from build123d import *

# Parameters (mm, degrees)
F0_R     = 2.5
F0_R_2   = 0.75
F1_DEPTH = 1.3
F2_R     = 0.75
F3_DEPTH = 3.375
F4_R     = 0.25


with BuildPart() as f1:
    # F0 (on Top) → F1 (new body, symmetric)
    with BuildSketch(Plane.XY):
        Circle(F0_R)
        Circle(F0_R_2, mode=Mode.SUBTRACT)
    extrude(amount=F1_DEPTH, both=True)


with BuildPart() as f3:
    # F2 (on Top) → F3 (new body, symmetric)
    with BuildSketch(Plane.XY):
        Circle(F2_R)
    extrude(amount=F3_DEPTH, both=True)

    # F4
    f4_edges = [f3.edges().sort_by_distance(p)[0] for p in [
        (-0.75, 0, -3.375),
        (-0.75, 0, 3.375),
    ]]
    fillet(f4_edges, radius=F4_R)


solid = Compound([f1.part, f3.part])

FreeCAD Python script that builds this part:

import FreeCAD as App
import Part
import Sketcher

V = App.Vector


def edges_at(feature, points):
    """Names of the edges that pass closest to the given points."""
    edges = feature.Shape.Edges
    near = lambda p: min(range(len(edges)), key=lambda i: edges[i].distToShape(Part.Vertex(*p))[0])
    return sorted({f"Edge{near(p) + 1}" for p in points})

doc = App.newDocument("Part")
params = doc.addObject("Spreadsheet::Sheet", "Params")
for row, (alias, value) in enumerate([
    ("sketch1_diameter", "5 mm"),
    ("sketch1_diameter2", "1.5 mm"),
    ("pad1_length", "2.6 mm"),
    ("sketch2_diameter", "1.5 mm"),
    ("pad2_length", "6.75 mm"),
    ("fillet_radius", "0.25 mm"),
], start=1):
    params.set(f"A{row}", alias)
    params.set(f"B{row}", "=" + value)
    params.setAlias(f"B{row}", alias)

body = doc.addObject("PartDesign::Body", "Body")

sketch1 = body.newObject("Sketcher::SketchObject", "Sketch")
sketch1.AttachmentSupport = (doc.getObject("XY_Plane"), [""])
sketch1.MapMode = "FlatFace"
sketch1.addGeometry([
    Part.Circle(V(0, 0, 0), V(0, 0, 1), 2.5),
    Part.Circle(V(0, 0, 0), V(0, 0, 1), 0.8),
], False)
sketch1.addConstraint([
    Sketcher.Constraint("Coincident", 0, 3, -1, 1),
    Sketcher.Constraint("Coincident", 1, 3, -1, 1),
    Sketcher.Constraint("Diameter", 0, 5.0),
    Sketcher.Constraint("Diameter", 1, 1.5),
])
sketch1.setExpression("Constraints[2]", "Params.sketch1_diameter")
sketch1.setExpression("Constraints[3]", "Params.sketch1_diameter2")
pad1 = body.newObject("PartDesign::Pad", "Pad")
pad1.Profile = sketch1
pad1.setExpression("Length", "Params.pad1_length")
pad1.Midplane = True
body2 = doc.addObject("PartDesign::Body", "Body001")

sketch2 = body2.newObject("Sketcher::SketchObject", "Sketch001")
sketch2.AttachmentSupport = (doc.getObject("XY_Plane001"), [""])
sketch2.MapMode = "FlatFace"
sketch2.addGeometry(Part.Circle(V(0, 0, 0), V(0, 0, 1), 0.8), False)
sketch2.addConstraint([
    Sketcher.Constraint("Coincident", 0, 3, -1, 1),
    Sketcher.Constraint("Diameter", 0, 1.5),
])
sketch2.setExpression("Constraints[1]", "Params.sketch2_diameter")
pad2 = body2.newObject("PartDesign::Pad", "Pad001")
pad2.Profile = sketch2
pad2.setExpression("Length", "Params.pad2_length")
pad2.Midplane = True
doc.recompute()

fillet = body2.newObject("PartDesign::Fillet", "Fillet")
fillet.Base = (pad2, edges_at(pad2, [(-0.75, 0, -3.375), (-0.75, 0, 3.375)]))
fillet.setExpression("Radius", "Params.fillet_radius")

doc.recompute()
